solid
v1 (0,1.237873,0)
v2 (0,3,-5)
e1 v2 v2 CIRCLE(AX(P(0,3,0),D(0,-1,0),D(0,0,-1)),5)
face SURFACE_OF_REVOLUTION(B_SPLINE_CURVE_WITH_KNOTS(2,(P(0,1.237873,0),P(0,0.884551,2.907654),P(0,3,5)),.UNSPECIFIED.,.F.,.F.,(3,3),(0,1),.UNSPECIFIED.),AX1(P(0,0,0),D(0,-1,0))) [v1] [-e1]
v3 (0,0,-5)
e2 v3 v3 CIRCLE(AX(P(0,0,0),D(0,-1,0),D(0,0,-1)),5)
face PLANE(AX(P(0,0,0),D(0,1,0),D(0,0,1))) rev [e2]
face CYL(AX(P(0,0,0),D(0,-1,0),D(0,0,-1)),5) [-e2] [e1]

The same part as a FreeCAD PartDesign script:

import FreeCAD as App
import Part
import Sketcher

V = App.Vector

doc = App.newDocument("Part")
body = doc.addObject("PartDesign::Body", "Body")

sketch1 = body.newObject("Sketcher::SketchObject", "Sketch")
sketch1.AttachmentSupport = (doc.getObject("YZ_Plane"), [""])
sketch1.MapMode = "FlatFace"
sketch1.addGeometry([
    Part.LineSegment(V(0, 5, 0), V(0, 0, 0)),
    Part.LineSegment(V(0, 0, 0), V(1.237873, 0, 0)),
    Part.BSplineCurve([V(3, 5, 0), V(0.884551, 2.907654, 0), V(1.237873, 0, 0)], [3, 3], [0, 1], False, 2, [1, 1, 1], False),
    Part.LineSegment(V(3, 5, 0), V(0, 5, 0)),
], False)
sketch1.addConstraint([
    Sketcher.Constraint("Block", 2),
    Sketcher.Constraint("Coincident", 0, 2, 1, 1),
    Sketcher.Constraint("Coincident", 1, 2, 2, 2),
    Sketcher.Constraint("Coincident", 2, 1, 3, 1),
    Sketcher.Constraint("Coincident", 3, 2, 0, 1),
    Sketcher.Constraint("Vertical", 0),
    Sketcher.Constraint("Horizontal", 1),
    Sketcher.Constraint("Horizontal", 3),
    Sketcher.Constraint("PointOnObject", 3, 2, -2),
])
revolution = body.newObject("PartDesign::Revolution", "Revolution")
revolution.Profile = sketch1
revolution.ReferenceAxis = (sketch1, ["H_Axis"])
revolution.Angle = 360

doc.recompute()
